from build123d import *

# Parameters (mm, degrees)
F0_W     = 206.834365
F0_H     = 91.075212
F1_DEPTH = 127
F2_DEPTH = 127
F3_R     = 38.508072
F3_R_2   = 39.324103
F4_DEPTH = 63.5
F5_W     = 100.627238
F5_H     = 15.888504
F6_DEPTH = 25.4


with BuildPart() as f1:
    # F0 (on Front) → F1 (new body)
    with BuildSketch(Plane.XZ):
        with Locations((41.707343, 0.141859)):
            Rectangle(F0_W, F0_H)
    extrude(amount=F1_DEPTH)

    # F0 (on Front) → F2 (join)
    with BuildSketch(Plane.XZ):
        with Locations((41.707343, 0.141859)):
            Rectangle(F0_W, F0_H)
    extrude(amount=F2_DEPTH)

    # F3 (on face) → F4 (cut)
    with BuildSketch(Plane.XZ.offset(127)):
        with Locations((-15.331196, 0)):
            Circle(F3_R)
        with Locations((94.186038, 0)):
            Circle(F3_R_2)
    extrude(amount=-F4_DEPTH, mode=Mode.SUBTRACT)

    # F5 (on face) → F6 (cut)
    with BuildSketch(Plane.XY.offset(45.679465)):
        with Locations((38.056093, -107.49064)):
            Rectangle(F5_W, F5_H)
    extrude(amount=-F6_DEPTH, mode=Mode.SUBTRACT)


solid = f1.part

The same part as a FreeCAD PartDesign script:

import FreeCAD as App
import Part
import Sketcher
from FreeCAD import Vector
Q = App.Units.Quantity

doc = App.newDocument("Part")
body = doc.addObject("PartDesign::Body", "Body")

sketch1 = doc.addObject("Sketcher::SketchObject", "Sketch")
body.addObject(sketch1)
sketch1.AttachmentSupport = (doc.XZ_Plane, [""])
sketch1.MapMode = "FlatFace"
sketch1.addGeometry([
    Part.LineSegment(Vector(-62, 46, 0), Vector(-62, -45, 0)),
    Part.LineSegment(Vector(-62, -45, 0), Vector(145, -45, 0)),
    Part.LineSegment(Vector(145, -45, 0), Vector(145, 46, 0)),
    Part.LineSegment(Vector(145, 46, 0), Vector(-62, 46, 0)),
], False)
sketch1.addConstraint([
    Sketcher.Constraint("Coincident", 0, 2, 1, 1),
    Sketcher.Constraint("Coincident", 1, 2, 2, 1),
    Sketcher.Constraint("Coincident", 2, 2, 3, 1),
    Sketcher.Constraint("Coincident", 3, 2, 0, 1),
    Sketcher.Constraint("Vertical", 0),
    Sketcher.Constraint("Horizontal", 1),
    Sketcher.Constraint("Vertical", 2),
    Sketcher.Constraint("Horizontal", 3),
    Sketcher.Constraint("DistanceY", 0, 2, 0, 1, 91.075212),
    Sketcher.Constraint("DistanceX", 1, 1, 1, 2, 206.834365),
    Sketcher.Constraint("DistanceX", 0, 2, -1, 1, 61.70984),
    Sketcher.Constraint("DistanceY", 0, 2, -1, 1, 45.395747),
])
pad1 = doc.addObject("PartDesign::Pad", "Pad")
body.addObject(pad1)
pad1.Profile = sketch1
pad1.Length = Q("5 in")

sketch2 = doc.addObject("Sketcher::SketchObject", "Sketch001")
body.addObject(sketch2)
sketch2.AttachmentSupport = (doc.XZ_Plane, [""])
sketch2.MapMode = "FlatFace"
sketch2.addGeometry([
    Part.LineSegment(Vector(-62, 46, 0), Vector(-62, -45, 0)),
    Part.LineSegment(Vector(-62, -45, 0), Vector(145, -45, 0)),
    Part.LineSegment(Vector(145, -45, 0), Vector(145, 46, 0)),
    Part.LineSegment(Vector(145, 46, 0), Vector(-62, 46, 0)),
], False)
sketch2.addConstraint([
    Sketcher.Constraint("Coincident", 0, 2, 1, 1),
    Sketcher.Constraint("Coincident", 1, 2, 2, 1),
    Sketcher.Constraint("Coincident", 2, 2, 3, 1),
    Sketcher.Constraint("Coincident", 3, 2, 0, 1),
    Sketcher.Constraint("Vertical", 0),
    Sketcher.Constraint("Horizontal", 1),
    Sketcher.Constraint("Vertical", 2),
    Sketcher.Constraint("Horizontal", 3),
    Sketcher.Constraint("DistanceY", 0, 2, 0, 1, 91.075212),
    Sketcher.Constraint("DistanceX", 1, 1, 1, 2, 206.834365),
    Sketcher.Constraint("DistanceX", 0, 2, -1, 1, 61.70984),
    Sketcher.Constraint("DistanceY", 0, 2, -1, 1, 45.395747),
])
pad2 = doc.addObject("PartDesign::Pad", "Pad001")
body.addObject(pad2)
pad2.Profile = sketch2
pad2.Length = Q("5 in")

sketch3 = doc.addObject("Sketcher::SketchObject", "Sketch002")
body.addObject(sketch3)
sketch3.AttachmentSupport = (doc.XZ_Plane, [""])
sketch3.MapMode = "FlatFace"
sketch3.AttachmentOffset = App.Placement(Vector(0, 0, 5 * 25.4), App.Rotation())
sketch3.addGeometry([
    Part.Circle(Vector(-15, 0, 0), Vector(0, 0, 1), 39),
    Part.Circle(Vector(94, 0, 0), Vector(0, 0, 1), 39),
], False)
sketch3.addConstraint([
    Sketcher.Constraint("PointOnObject", 0, 3, -1),
    Sketcher.Constraint("PointOnObject", 1, 3, -1),
    Sketcher.Constraint("Diameter", 0, 77.016144),
    Sketcher.Constraint("Diameter", 1, 78.648206),
    Sketcher.Constraint("DistanceX", 0, 3, -1, 1, 15.331196),
    Sketcher.Constraint("DistanceX", -1, 1, 1, 3, 94.186038),
])
pocket1 = doc.addObject("PartDesign::Pocket", "Pocket")
body.addObject(pocket1)
pocket1.Profile = sketch3
pocket1.Length = Q("2.5 in")

sketch4 = doc.addObject("Sketcher::SketchObject", "Sketch003")
body.addObject(sketch4)
sketch4.AttachmentSupport = (doc.XY_Plane, [""])
sketch4.MapMode = "FlatFace"
sketch4.AttachmentOffset = App.Placement(Vector(0, 0, 45.679465), App.Rotation())
sketch4.addGeometry([
    Part.LineSegment(Vector(-12, -100, 0), Vector(-12, -115, 0)),
    Part.LineSegment(Vector(-12, -115, 0), Vector(88, -115, 0)),
    Part.LineSegment(Vector(88, -115, 0), Vector(88, -100, 0)),
    Part.LineSegment(Vector(88, -100, 0), Vector(-12, -100, 0)),
], False)
sketch4.addConstraint([
    Sketcher.Constraint("Coincident", 0, 2, 1, 1),
    Sketcher.Constraint("Coincident", 1, 2, 2, 1),
    Sketcher.Constraint("Coincident", 2, 2, 3, 1),
    Sketcher.Constraint("Coincident", 3, 2, 0, 1),
    Sketcher.Constraint("Vertical", 0),
    Sketcher.Constraint("Horizontal", 1),
    Sketcher.Constraint("Vertical", 2),
    Sketcher.Constraint("Horizontal", 3),
    Sketcher.Constraint("DistanceX", 1, 1, 1, 2, 100.627238),
    Sketcher.Constraint("DistanceY", 0, 2, 0, 1, 15.888504),
    Sketcher.Constraint("DistanceX", 0, 2, -1, 1, 12.257526),
    Sketcher.Constraint("DistanceY", 0, 2, -1, 1, 115.434892),
])
pocket2 = doc.addObject("PartDesign::Pocket", "Pocket001")
body.addObject(pocket2)
pocket2.Profile = sketch4
pocket2.Length = Q("1 in")

doc.recompute()
